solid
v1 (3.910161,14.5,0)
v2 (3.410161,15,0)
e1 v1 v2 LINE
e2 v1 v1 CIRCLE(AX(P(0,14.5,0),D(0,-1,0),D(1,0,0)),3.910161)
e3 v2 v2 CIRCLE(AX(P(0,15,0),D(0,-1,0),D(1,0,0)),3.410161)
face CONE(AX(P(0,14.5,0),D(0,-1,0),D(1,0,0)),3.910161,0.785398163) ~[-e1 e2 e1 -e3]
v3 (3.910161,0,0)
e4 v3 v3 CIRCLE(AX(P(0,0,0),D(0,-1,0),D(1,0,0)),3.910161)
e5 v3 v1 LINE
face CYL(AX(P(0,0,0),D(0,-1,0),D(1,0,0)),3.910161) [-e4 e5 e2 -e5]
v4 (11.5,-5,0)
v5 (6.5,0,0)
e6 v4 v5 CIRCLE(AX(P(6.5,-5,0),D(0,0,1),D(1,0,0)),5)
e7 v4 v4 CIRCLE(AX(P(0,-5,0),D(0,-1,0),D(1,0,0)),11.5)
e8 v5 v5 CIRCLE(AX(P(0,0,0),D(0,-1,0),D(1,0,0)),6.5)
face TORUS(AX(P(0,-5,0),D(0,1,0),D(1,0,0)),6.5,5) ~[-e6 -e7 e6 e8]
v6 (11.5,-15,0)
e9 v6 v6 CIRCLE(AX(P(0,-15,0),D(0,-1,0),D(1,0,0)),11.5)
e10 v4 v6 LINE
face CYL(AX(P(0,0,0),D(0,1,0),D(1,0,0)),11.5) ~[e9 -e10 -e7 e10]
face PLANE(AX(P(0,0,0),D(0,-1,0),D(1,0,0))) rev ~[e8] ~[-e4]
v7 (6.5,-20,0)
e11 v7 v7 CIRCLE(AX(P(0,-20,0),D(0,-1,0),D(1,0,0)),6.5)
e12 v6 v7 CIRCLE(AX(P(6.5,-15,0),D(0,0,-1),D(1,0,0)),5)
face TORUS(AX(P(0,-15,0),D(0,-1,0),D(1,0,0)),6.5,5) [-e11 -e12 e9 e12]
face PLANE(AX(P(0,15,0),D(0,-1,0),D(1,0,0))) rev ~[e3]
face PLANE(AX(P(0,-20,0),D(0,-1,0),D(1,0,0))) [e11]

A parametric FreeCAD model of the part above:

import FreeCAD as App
import Part
import Sketcher


def edges_at(feature, points):
    """Names of the edges that pass closest to the given points."""
    edges = feature.Shape.Edges
    near = lambda p: min(range(len(edges)), key=lambda i: edges[i].distToShape(Part.Vertex(*p))[0])
    return sorted({f"Edge{near(p) + 1}" for p in points})

doc = App.newDocument("Part")
body = doc.addObject("PartDesign::Body", "Body")

# Sketch on XZ plane
sketch1 = body.newObject("Sketcher::SketchObject", "Sketch")
sketch1.AttachmentSupport = (doc.getObject("XZ_Plane"), [""])
sketch1.MapMode = "FlatFace"
sketch1.addGeometry(Part.Circle(App.Vector(0, 0, 0), App.Vector(0, 0, 1), 11.5), False)
sketch1.addConstraint(Sketcher.Constraint("Coincident", 0, 3, -1, 1))
sketch1.addConstraint(Sketcher.Constraint("Diameter", 0, 23.0))
pad1 = body.newObject("PartDesign::Pad", "Pad")
pad1.Profile = sketch1
pad1.Length = 20
doc.recompute()

fillet = body.newObject("PartDesign::Fillet", "Fillet")
fillet.Base = (pad1, edges_at(pad1, [(-11.5, -20, 0), (-11.5, 0, 0)]))
fillet.Radius = 5

# Sketch on XZ plane
sketch2 = body.newObject("Sketcher::SketchObject", "Sketch001")
sketch2.AttachmentSupport = (doc.getObject("XZ_Plane"), [""])
sketch2.MapMode = "FlatFace"
sketch2.addGeometry(Part.Circle(App.Vector(0, 0, 0), App.Vector(0, 0, 1), 3.910161), False)
sketch2.addConstraint(Sketcher.Constraint("Coincident", 0, 3, -1, 1))
sketch2.addConstraint(Sketcher.Constraint("Diameter", 0, 7.820322))
pad2 = body.newObject("PartDesign::Pad", "Pad001")
pad2.Profile = sketch2
pad2.Length = 15
pad2.Reversed = True
doc.recompute()

chamfer = body.newObject("PartDesign::Chamfer", "Chamfer")
chamfer.Base = (pad2, edges_at(pad2, [(-3.91, 15, 0)]))
chamfer.Size = 0.5

doc.recompute()
